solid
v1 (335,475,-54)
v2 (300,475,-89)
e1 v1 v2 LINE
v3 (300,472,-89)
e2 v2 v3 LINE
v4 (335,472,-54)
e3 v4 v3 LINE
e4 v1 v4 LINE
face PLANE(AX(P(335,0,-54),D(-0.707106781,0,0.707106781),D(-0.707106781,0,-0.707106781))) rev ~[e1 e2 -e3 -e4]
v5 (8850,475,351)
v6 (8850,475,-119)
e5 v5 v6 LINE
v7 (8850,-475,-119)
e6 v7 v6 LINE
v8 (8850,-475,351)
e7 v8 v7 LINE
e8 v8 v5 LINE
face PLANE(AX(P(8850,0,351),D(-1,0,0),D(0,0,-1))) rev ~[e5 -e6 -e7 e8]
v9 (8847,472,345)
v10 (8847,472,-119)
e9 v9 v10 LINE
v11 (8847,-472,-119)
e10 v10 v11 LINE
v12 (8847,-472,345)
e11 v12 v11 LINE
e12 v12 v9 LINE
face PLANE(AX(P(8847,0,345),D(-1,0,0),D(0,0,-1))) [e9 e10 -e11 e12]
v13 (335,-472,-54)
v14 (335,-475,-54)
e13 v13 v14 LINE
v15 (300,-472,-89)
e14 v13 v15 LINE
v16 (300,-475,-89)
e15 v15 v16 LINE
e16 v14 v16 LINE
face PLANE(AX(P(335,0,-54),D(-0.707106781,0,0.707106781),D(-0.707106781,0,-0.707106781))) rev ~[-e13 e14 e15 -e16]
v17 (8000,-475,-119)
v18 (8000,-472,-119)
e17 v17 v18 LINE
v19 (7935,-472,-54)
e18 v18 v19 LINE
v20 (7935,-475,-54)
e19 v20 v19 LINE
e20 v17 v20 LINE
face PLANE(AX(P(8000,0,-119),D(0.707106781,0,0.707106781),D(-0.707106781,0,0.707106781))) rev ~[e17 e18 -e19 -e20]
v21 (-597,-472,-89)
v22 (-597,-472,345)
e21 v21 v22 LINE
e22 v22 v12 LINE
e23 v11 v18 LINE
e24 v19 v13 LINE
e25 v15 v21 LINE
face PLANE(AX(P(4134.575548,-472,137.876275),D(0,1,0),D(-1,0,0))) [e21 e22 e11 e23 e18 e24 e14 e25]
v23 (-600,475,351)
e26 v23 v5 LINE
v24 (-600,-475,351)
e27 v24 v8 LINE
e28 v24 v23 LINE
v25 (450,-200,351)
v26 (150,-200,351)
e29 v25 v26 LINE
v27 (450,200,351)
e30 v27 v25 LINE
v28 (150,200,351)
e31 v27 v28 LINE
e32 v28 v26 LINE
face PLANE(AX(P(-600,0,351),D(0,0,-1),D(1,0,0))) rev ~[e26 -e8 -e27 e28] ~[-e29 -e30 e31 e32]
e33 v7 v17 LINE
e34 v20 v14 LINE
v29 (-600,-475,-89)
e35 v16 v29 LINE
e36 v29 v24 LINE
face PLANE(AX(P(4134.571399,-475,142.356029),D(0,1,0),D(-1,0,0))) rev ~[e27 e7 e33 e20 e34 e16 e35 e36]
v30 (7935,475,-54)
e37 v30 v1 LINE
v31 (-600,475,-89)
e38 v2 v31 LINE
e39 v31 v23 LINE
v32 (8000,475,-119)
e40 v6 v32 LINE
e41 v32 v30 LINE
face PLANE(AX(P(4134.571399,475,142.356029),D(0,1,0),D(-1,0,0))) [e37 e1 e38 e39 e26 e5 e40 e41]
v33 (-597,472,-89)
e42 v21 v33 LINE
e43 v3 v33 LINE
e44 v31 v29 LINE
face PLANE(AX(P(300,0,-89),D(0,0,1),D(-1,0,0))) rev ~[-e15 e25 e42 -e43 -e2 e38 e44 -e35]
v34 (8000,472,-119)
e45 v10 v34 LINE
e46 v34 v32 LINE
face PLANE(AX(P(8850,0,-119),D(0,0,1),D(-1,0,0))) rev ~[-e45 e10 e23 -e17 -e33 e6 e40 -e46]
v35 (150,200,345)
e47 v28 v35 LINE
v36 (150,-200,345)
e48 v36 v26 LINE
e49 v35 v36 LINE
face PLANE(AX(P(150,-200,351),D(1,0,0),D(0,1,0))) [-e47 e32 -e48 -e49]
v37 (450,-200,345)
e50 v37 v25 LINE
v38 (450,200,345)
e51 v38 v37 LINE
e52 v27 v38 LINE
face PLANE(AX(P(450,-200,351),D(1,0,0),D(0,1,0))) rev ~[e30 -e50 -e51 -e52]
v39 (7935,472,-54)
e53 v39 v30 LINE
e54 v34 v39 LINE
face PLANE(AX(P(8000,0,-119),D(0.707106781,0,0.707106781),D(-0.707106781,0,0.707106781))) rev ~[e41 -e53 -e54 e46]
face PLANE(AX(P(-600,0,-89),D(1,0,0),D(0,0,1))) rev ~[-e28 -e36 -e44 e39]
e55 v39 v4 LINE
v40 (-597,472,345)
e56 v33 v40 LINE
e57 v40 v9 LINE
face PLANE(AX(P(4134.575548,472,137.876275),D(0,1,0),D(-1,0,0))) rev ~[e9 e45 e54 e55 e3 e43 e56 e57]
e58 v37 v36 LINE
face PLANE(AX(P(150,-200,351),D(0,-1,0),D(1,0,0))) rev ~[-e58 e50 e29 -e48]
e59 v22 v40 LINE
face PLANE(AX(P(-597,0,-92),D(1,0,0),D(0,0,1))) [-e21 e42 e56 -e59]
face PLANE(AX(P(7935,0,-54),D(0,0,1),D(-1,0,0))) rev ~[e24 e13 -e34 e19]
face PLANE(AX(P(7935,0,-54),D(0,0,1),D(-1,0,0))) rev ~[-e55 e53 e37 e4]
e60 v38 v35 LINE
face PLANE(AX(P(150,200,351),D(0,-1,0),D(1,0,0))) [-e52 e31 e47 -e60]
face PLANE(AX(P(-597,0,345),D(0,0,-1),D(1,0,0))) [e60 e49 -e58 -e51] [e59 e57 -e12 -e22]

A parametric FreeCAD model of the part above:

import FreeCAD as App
import Part
import Sketcher
from FreeCAD import Vector
Q = App.Units.Quantity

doc = App.newDocument("Part")
body = doc.addObject("PartDesign::Body", "Body")

sketch1 = doc.addObject("Sketcher::SketchObject", "Sketch")
body.addObject(sketch1)
sketch1.AttachmentSupport = (doc.XY_Plane, [""])
sketch1.MapMode = "FlatFace"
sketch1.AttachmentOffset = App.Placement(Vector(0, 0, 351), App.Rotation())
sketch1.addGeometry([
    Part.LineSegment(Vector(150, 200, 0), Vector(150, -200, 0)),
    Part.LineSegment(Vector(150, -200, 0), Vector(450, -200, 0)),
    Part.LineSegment(Vector(450, -200, 0), Vector(450, 200, 0)),
    Part.LineSegment(Vector(450, 200, 0), Vector(150, 200, 0)),
], False)
sketch1.addConstraint([
    Sketcher.Constraint("Coincident", 0, 2, 1, 1),
    Sketcher.Constraint("Coincident", 1, 2, 2, 1),
    Sketcher.Constraint("Coincident", 2, 2, 3, 1),
    Sketcher.Constraint("Coincident", 3, 2, 0, 1),
    Sketcher.Constraint("Vertical", 0),
    Sketcher.Constraint("Horizontal", 1),
    Sketcher.Constraint("Vertical", 2),
    Sketcher.Constraint("Horizontal", 3),
    Sketcher.Constraint("DistanceX", 1, 1, 1, 2, 300.0),
    Sketcher.Constraint("DistanceY", 0, 2, 0, 1, 400.0),
    Sketcher.Constraint("DistanceX", -1, 1, 0, 2, 150.0),
    Sketcher.Constraint("DistanceY", 0, 2, -1, 1, 200.0),
])
pad1 = doc.addObject("PartDesign::Pad", "Pad")
body.addObject(pad1)
pad1.Profile = sketch1
pad1.Length = 50
pad1.Midplane = True
body2 = doc.addObject("PartDesign::Body", "Body001")

sketch2 = doc.addObject("Sketcher::SketchObject", "Sketch001")
body2.addObject(sketch2)
sketch2.AttachmentSupport = (doc.getObject("XZ_Plane001"), [""])
sketch2.MapMode = "FlatFace"
sketch2.addGeometry([
    Part.LineSegment(Vector(-597, 348, 0), Vector(-597, -89, 0)),
    Part.LineSegment(Vector(-597, -89, 0), Vector(300, -89, 0)),
    Part.LineSegment(Vector(300, -89, 0), Vector(335, -54, 0)),
    Part.LineSegment(Vector(335, -54, 0), Vector(7935, -54, 0)),
    Part.LineSegment(Vector(7935, -54, 0), Vector(8000, -119, 0)),
    Part.LineSegment(Vector(8000, -119, 0), Vector(8847, -119, 0)),
    Part.LineSegment(Vector(8847, -119, 0), Vector(8847, 348, 0)),
    Part.LineSegment(Vector(8847, 348, 0), Vector(-597, 348, 0)),
], False)
sketch2.addConstraint([
    Sketcher.Constraint("Coincident", 0, 2, 1, 1),
    Sketcher.Constraint("Coincident", 1, 2, 2, 1),
    Sketcher.Constraint("Coincident", 2, 2, 3, 1),
    Sketcher.Constraint("Coincident", 3, 2, 4, 1),
    Sketcher.Constraint("Coincident", 4, 2, 5, 1),
    Sketcher.Constraint("Coincident", 5, 2, 6, 1),
    Sketcher.Constraint("Coincident", 6, 2, 7, 1),
    Sketcher.Constraint("Coincident", 7, 2, 0, 1),
    Sketcher.Constraint("Vertical", 0),
    Sketcher.Constraint("Horizontal", 1),
    Sketcher.Constraint("Horizontal", 3),
    Sketcher.Constraint("Horizontal", 5),
    Sketcher.Constraint("Vertical", 6),
    Sketcher.Constraint("Horizontal", 7),
    Sketcher.Constraint("Perpendicular", 2, 4),
    Sketcher.Constraint("DistanceX", 1, 1, 1, 2, 897.0),
    Sketcher.Constraint("DistanceX", 3, 1, 3, 2, 7600.0),
    Sketcher.Constraint("DistanceX", 5, 1, 5, 2, 847.0),
    Sketcher.Constraint("DistanceX", 7, 2, 7, 1, 9444.0),
    Sketcher.Constraint("DistanceY", 0, 2, 0, 1, 437.0),
    Sketcher.Constraint("DistanceY", 6, 1, 6, 2, 467.0),
    Sketcher.Constraint("Angle", 2, Q("45 deg")),
    Sketcher.Constraint("DistanceX", 0, 2, -1, 1, 597.0),
    Sketcher.Constraint("DistanceY", 0, 2, -1, 1, 89.0),
])
pad2 = doc.addObject("PartDesign::Pad", "Pad001")
body2.addObject(pad2)
pad2.Profile = sketch2
pad2.Length = 944
pad2.Midplane = True
body3 = doc.addObject("PartDesign::Body", "Body002")
doc.recompute()

body2.Placement = App.Placement(Vector(0, 0, -3), App.Rotation(Vector(0, 0, 1), 0))
boolean = doc.addObject("PartDesign::Boolean", "Boolean")
body3.addObject(boolean)
boolean.Type = "Fuse"
boolean.addObjects([body2])
body4 = doc.addObject("PartDesign::Body", "Body003")

sketch3 = doc.addObject("Sketcher::SketchObject", "Sketch002")
body4.addObject(sketch3)
sketch3.AttachmentSupport = (doc.getObject("XZ_Plane003"), [""])
sketch3.MapMode = "FlatFace"
sketch3.addGeometry([
    Part.LineSegment(Vector(-600, 351, 0), Vector(-600, -89, 0)),
    Part.LineSegment(Vector(-600, -89, 0), Vector(300, -89, 0)),
    Part.LineSegment(Vector(300, -89, 0), Vector(335, -54, 0)),
    Part.LineSegment(Vector(335, -54, 0), Vector(7935, -54, 0)),
    Part.LineSegment(Vector(7935, -54, 0), Vector(8000, -119, 0)),
    Part.LineSegment(Vector(8000, -119, 0), Vector(8850, -119, 0)),
    Part.LineSegment(Vector(8850, -119, 0), Vector(8850, 351, 0)),
    Part.LineSegment(Vector(8850, 351, 0), Vector(-600, 351, 0)),
], False)
sketch3.addConstraint([
    Sketcher.Constraint("Coincident", 0, 2, 1, 1),
    Sketcher.Constraint("Coincident", 1, 2, 2, 1),
    Sketcher.Constraint("Coincident", 2, 2, 3, 1),
    Sketcher.Constraint("Coincident", 3, 2, 4, 1),
    Sketcher.Constraint("Coincident", 4, 2, 5, 1),
    Sketcher.Constraint("Coincident", 5, 2, 6, 1),
    Sketcher.Constraint("Coincident", 6, 2, 7, 1),
    Sketcher.Constraint("Coincident", 7, 2, 0, 1),
    Sketcher.Constraint("Vertical", 0),
    Sketcher.Constraint("Horizontal", 1),
    Sketcher.Constraint("Horizontal", 3),
    Sketcher.Constraint("Horizontal", 5),
    Sketcher.Constraint("Vertical", 6),
    Sketcher.Constraint("Horizontal", 7),
    Sketcher.Constraint("Perpendicular", 2, 4),
    Sketcher.Constraint("DistanceX", 1, 1, 1, 2, 900.0),
    Sketcher.Constraint("DistanceX", 3, 1, 3, 2, 7600.0),
    Sketcher.Constraint("DistanceX", 5, 1, 5, 2, 850.0),
    Sketcher.Constraint("DistanceX", 7, 2, 7, 1, 9450.0),
    Sketcher.Constraint("DistanceY", 0, 2, 0, 1, 440.0),
    Sketcher.Constraint("DistanceY", 6, 1, 6, 2, 470.0),
    Sketcher.Constraint("Angle", 2, Q("45 deg")),
    Sketcher.Constraint("DistanceX", 0, 2, -1, 1, 600.0),
    Sketcher.Constraint("DistanceY", 0, 2, -1, 1, 89.0),
])
pad3 = doc.addObject("PartDesign::Pad", "Pad002")
body4.addObject(pad3)
pad3.Profile = sketch3
pad3.Length = 950
pad3.Midplane = True
doc.recompute()

boolean2 = doc.addObject("PartDesign::Boolean", "Boolean001")
body4.addObject(boolean2)
boolean2.Type = "Cut"
boolean2.addObjects([body3])
doc.recompute()

boolean3 = doc.addObject("PartDesign::Boolean", "Boolean002")
body4.addObject(boolean3)
boolean3.Type = "Cut"
boolean3.addObjects([body])

doc.recompute()
